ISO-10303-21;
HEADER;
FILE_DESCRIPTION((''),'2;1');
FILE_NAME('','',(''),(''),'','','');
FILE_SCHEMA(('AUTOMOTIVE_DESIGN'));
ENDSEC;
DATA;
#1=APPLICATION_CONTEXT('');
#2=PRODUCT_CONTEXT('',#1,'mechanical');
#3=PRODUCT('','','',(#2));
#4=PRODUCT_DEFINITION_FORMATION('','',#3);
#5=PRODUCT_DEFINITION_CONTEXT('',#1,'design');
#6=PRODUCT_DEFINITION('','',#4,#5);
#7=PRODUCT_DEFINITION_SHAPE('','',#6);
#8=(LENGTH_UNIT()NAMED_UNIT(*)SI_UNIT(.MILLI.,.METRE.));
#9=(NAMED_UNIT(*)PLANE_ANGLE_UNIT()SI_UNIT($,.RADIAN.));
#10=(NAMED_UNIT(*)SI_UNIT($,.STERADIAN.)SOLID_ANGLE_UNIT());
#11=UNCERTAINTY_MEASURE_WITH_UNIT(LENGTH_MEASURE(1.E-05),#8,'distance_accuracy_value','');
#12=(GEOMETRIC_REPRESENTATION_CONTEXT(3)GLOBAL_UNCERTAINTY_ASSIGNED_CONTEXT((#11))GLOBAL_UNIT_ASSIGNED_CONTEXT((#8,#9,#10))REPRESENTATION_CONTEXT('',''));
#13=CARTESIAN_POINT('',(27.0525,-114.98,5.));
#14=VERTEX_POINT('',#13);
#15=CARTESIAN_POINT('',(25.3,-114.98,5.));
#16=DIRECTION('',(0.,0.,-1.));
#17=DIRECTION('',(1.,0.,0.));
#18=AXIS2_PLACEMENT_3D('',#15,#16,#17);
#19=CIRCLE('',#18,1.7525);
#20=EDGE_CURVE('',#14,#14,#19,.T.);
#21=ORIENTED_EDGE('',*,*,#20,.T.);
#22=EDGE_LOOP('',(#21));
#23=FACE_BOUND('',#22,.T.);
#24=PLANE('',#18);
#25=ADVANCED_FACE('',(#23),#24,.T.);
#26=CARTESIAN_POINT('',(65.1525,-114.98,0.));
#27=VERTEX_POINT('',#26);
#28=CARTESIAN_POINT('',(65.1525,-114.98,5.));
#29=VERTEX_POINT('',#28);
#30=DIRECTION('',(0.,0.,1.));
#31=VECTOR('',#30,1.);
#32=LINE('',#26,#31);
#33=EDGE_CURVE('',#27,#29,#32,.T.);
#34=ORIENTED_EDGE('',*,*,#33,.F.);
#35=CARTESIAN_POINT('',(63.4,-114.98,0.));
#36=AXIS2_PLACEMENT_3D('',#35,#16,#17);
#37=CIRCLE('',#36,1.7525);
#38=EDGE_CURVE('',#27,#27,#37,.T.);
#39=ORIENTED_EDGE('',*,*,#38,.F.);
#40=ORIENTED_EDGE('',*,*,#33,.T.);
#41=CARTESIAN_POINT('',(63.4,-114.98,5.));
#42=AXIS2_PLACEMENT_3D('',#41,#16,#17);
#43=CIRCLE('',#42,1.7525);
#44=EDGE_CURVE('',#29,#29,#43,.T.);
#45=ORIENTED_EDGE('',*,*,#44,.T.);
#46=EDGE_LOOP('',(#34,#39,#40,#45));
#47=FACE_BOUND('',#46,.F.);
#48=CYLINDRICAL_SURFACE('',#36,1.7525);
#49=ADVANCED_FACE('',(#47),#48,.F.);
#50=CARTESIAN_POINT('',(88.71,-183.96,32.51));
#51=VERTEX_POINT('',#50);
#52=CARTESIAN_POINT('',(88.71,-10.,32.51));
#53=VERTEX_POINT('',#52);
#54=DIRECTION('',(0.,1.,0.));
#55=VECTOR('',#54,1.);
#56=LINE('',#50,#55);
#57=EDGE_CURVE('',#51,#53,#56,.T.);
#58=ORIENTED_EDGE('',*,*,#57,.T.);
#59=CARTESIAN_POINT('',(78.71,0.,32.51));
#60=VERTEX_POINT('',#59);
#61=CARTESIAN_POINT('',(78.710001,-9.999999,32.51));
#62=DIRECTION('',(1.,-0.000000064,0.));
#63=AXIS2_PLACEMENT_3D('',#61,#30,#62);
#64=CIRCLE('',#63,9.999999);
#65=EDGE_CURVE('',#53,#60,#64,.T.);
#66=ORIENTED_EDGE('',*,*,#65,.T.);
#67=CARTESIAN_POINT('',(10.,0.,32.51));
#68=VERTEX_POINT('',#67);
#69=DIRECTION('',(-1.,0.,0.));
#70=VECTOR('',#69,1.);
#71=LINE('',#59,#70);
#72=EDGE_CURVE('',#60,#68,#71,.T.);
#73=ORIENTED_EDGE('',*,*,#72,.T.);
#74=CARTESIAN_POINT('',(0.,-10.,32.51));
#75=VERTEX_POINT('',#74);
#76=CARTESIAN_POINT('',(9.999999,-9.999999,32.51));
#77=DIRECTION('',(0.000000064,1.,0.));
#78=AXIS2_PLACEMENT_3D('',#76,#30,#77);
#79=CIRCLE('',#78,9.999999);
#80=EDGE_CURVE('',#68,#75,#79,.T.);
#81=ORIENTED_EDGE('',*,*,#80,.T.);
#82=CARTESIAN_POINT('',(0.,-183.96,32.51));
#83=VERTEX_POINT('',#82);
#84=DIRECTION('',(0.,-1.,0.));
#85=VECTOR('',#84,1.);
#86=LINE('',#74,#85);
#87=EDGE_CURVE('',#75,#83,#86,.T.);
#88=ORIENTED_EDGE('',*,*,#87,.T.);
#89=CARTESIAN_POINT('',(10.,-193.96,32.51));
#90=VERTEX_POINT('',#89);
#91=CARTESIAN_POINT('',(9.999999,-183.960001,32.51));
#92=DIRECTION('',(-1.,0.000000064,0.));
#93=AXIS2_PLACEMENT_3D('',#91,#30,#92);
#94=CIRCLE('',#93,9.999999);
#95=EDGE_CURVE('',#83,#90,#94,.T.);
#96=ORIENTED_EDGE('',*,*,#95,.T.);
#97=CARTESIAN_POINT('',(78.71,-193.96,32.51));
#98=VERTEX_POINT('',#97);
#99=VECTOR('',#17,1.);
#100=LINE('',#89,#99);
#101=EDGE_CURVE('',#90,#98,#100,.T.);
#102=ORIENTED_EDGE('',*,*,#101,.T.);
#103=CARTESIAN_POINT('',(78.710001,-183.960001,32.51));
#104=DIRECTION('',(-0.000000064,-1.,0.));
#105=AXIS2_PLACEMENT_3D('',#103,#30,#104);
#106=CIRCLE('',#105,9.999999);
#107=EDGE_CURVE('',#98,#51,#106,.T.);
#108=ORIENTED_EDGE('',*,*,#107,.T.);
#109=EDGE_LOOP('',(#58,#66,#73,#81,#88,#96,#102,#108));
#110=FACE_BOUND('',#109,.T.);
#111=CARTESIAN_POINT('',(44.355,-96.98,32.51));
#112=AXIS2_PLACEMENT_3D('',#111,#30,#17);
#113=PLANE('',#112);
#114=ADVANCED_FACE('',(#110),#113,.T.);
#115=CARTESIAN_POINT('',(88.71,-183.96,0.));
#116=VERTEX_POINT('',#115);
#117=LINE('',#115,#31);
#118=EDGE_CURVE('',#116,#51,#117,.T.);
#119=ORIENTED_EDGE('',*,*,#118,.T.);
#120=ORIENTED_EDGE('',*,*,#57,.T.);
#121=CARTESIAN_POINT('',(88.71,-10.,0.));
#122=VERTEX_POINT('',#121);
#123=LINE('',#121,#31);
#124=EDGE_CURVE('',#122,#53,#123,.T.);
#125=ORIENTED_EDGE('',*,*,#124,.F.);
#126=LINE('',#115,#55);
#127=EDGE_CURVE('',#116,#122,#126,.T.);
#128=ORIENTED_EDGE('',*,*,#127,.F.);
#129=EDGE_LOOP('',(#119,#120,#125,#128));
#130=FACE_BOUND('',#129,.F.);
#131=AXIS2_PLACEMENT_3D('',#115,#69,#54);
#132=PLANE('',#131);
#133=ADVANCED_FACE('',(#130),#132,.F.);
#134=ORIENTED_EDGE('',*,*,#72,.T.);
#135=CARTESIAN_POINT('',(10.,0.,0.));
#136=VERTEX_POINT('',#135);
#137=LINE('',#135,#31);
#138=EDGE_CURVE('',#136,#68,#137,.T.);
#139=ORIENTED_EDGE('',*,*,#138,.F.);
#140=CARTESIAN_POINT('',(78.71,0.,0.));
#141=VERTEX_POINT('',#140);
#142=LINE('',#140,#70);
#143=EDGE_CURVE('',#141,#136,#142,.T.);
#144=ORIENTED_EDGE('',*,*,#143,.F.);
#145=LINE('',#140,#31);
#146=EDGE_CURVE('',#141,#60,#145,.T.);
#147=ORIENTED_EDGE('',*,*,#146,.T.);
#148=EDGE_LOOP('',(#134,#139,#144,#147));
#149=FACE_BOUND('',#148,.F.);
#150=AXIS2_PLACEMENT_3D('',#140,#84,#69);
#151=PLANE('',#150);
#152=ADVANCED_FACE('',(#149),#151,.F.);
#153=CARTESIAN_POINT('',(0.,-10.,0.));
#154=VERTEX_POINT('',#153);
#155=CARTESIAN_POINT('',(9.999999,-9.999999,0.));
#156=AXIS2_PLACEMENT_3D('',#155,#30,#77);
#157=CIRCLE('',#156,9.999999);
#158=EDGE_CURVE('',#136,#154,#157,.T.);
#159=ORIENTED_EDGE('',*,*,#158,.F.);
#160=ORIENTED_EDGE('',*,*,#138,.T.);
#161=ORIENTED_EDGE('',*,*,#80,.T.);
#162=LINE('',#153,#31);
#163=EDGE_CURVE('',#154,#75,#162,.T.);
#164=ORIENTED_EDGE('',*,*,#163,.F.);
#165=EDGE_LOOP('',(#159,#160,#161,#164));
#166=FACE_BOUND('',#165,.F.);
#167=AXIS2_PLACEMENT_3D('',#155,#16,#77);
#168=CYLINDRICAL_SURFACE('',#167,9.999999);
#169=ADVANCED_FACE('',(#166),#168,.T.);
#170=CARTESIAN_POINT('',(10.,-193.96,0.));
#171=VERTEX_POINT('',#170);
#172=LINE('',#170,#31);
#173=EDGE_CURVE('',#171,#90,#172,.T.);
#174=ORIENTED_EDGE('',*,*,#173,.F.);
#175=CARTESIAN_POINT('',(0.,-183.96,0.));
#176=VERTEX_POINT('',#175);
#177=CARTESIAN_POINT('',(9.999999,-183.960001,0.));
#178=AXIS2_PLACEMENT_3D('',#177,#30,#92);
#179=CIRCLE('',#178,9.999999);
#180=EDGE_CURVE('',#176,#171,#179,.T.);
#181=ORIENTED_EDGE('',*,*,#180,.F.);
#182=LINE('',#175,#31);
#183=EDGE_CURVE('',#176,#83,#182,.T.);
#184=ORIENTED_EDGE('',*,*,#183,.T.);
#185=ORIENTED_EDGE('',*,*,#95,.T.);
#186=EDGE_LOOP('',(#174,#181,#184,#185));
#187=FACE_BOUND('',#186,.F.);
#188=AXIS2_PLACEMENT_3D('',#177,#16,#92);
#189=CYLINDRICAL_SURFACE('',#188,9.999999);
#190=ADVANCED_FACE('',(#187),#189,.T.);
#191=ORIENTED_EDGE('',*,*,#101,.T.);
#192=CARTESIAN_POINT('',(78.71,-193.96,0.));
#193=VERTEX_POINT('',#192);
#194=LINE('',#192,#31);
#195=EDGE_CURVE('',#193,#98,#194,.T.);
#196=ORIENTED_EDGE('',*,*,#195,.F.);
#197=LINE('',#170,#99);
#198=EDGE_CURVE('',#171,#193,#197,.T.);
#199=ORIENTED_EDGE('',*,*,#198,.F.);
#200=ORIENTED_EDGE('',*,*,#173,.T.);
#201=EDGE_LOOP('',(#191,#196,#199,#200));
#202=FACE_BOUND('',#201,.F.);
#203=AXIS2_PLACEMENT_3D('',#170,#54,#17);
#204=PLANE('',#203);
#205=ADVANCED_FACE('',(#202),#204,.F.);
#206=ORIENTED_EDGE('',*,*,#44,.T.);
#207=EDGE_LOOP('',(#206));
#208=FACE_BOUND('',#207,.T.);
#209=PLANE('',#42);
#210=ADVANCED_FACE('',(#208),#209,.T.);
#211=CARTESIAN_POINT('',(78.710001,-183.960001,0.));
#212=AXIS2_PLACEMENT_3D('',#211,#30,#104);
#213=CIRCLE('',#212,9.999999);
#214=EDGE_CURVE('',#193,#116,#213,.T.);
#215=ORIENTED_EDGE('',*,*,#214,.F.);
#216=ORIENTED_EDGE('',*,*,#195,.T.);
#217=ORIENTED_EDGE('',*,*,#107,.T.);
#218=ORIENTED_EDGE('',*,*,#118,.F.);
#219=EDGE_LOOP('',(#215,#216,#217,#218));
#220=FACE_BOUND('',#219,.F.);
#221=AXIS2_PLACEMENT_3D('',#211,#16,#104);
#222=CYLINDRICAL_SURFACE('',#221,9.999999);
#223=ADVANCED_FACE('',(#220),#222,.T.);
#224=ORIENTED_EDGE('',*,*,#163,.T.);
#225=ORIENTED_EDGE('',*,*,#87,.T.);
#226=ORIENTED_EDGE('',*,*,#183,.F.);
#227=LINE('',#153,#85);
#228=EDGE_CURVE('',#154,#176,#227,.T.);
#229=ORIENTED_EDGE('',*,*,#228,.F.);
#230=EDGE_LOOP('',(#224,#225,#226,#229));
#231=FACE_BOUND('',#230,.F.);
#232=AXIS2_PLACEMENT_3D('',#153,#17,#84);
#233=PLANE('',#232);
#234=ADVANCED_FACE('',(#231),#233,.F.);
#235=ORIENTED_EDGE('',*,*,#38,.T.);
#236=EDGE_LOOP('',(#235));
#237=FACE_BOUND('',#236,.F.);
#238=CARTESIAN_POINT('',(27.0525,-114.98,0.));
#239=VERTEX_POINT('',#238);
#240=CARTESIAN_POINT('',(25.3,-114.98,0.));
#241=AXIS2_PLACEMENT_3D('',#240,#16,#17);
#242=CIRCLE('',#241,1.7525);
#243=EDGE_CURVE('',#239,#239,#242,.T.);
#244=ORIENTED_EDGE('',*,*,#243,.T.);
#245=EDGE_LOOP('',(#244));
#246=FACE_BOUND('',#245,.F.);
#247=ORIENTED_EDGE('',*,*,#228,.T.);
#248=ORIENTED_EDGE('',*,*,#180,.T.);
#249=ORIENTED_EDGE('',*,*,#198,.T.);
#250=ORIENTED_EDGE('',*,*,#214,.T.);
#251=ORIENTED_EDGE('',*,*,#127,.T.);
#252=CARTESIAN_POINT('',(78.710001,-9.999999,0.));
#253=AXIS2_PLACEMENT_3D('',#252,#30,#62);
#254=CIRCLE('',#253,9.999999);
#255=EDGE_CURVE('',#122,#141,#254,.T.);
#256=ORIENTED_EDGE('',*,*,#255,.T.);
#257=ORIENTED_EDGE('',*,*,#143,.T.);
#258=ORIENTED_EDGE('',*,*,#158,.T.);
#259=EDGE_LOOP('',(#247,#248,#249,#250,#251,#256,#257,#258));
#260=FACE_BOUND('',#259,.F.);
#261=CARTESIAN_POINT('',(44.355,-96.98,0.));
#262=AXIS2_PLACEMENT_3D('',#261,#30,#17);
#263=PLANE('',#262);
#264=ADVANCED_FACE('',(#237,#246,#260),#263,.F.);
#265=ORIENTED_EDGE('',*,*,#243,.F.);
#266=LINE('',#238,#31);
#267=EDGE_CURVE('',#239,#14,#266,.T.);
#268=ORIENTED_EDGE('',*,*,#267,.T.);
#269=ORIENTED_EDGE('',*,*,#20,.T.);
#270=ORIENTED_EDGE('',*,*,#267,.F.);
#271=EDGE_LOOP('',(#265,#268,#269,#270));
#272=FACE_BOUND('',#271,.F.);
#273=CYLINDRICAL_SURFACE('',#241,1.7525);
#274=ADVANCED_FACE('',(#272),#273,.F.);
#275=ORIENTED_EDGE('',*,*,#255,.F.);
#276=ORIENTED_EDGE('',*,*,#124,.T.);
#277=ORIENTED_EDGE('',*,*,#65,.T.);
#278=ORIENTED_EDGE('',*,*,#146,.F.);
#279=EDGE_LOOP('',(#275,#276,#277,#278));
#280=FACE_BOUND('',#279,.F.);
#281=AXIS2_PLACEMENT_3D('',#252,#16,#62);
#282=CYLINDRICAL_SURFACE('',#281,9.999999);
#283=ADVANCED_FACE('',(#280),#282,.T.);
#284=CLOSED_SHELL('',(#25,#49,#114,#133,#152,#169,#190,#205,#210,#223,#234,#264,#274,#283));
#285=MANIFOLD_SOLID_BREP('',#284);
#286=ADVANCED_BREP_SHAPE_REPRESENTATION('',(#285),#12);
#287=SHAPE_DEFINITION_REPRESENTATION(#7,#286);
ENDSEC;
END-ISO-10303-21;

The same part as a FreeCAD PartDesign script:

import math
import FreeCAD as App
import Part
import Sketcher

V = App.Vector

doc = App.newDocument("Part")
body = doc.addObject("PartDesign::Body", "Body")

sketch1 = body.newObject("Sketcher::SketchObject", "Sketch")
sketch1.AttachmentSupport = (doc.getObject("XY_Plane"), [""])
sketch1.MapMode = "FlatFace"
sketch1.addGeometry([
    Part.LineSegment(V(79, 0, 0), V(10, 0, 0)),
    Part.ArcOfCircle(Part.Circle(V(10, -10, 0), V(0, 0, 1), 10), math.radians(90), math.radians(180)),
    Part.LineSegment(V(0, -10, 0), V(0, -184, 0)),
    Part.ArcOfCircle(Part.Circle(V(10, -184, 0), V(0, 0, 1), 10), math.radians(180), math.radians(270)),
    Part.LineSegment(V(10, -194, 0), V(79, -194, 0)),
    Part.ArcOfCircle(Part.Circle(V(79, -184, 0), V(0, 0, 1), 10), math.radians(-90), math.radians(0)),
    Part.LineSegment(V(89, -184, 0), V(89, -10, 0)),
    Part.ArcOfCircle(Part.Circle(V(79, -10, 0), V(0, 0, 1), 10), math.radians(0), math.radians(90)),
], False)
sketch1.addConstraint([
    Sketcher.Constraint("Tangent", 0, 2, 1, 1),
    Sketcher.Constraint("Tangent", 1, 2, 2, 1),
    Sketcher.Constraint("Tangent", 2, 2, 3, 1),
    Sketcher.Constraint("Tangent", 3, 2, 4, 1),
    Sketcher.Constraint("Tangent", 4, 2, 5, 1),
    Sketcher.Constraint("Tangent", 5, 2, 6, 1),
    Sketcher.Constraint("Tangent", 6, 2, 7, 1),
    Sketcher.Constraint("Tangent", 7, 2, 0, 1),
    Sketcher.Constraint("Horizontal", 0),
    Sketcher.Constraint("Vertical", 2),
    Sketcher.Constraint("Horizontal", 4),
    Sketcher.Constraint("Vertical", 6),
    Sketcher.Constraint("Equal", 1, 3),
    Sketcher.Constraint("Equal", 3, 5),
    Sketcher.Constraint("Equal", 5, 7),
    Sketcher.Constraint("PointOnObject", 0, 2, -1),
    Sketcher.Constraint("PointOnObject", 1, 2, -2),
    Sketcher.Constraint("Radius", 1, 9.999999),
    Sketcher.Constraint("DistanceX", 0, 2, 0, 1, 68.71),
    Sketcher.Constraint("DistanceY", 2, 2, 2, 1, 173.96),
])
pad1 = body.newObject("PartDesign::Pad", "Pad")
pad1.Profile = sketch1
pad1.Length = 32.51

sketch2 = body.newObject("Sketcher::SketchObject", "Sketch001")
sketch2.AttachmentSupport = (doc.getObject("XY_Plane"), [""])
sketch2.MapMode = "FlatFace"
sketch2.addGeometry([
    Part.Circle(V(63.4, -115, 0), V(0, 0, 1), 1.8),
    Part.Circle(V(25.3, -115, 0), V(0, 0, 1), 1.8),
], False)
sketch2.addConstraint([
    Sketcher.Constraint("Equal", 0, 1),
    Sketcher.Constraint("Horizontal", 0, 3, 1, 3),
    Sketcher.Constraint("Diameter", 0, 3.505),
    Sketcher.Constraint("DistanceX", -1, 1, 0, 3, 63.4),
    Sketcher.Constraint("DistanceX", -1, 1, 1, 3, 25.3),
    Sketcher.Constraint("DistanceY", 0, 3, -1, 1, 114.98),
])
pocket1 = body.newObject("PartDesign::Pocket", "Pocket")
pocket1.Profile = sketch2
pocket1.Length = 5
pocket1.Reversed = True

doc.recompute()
